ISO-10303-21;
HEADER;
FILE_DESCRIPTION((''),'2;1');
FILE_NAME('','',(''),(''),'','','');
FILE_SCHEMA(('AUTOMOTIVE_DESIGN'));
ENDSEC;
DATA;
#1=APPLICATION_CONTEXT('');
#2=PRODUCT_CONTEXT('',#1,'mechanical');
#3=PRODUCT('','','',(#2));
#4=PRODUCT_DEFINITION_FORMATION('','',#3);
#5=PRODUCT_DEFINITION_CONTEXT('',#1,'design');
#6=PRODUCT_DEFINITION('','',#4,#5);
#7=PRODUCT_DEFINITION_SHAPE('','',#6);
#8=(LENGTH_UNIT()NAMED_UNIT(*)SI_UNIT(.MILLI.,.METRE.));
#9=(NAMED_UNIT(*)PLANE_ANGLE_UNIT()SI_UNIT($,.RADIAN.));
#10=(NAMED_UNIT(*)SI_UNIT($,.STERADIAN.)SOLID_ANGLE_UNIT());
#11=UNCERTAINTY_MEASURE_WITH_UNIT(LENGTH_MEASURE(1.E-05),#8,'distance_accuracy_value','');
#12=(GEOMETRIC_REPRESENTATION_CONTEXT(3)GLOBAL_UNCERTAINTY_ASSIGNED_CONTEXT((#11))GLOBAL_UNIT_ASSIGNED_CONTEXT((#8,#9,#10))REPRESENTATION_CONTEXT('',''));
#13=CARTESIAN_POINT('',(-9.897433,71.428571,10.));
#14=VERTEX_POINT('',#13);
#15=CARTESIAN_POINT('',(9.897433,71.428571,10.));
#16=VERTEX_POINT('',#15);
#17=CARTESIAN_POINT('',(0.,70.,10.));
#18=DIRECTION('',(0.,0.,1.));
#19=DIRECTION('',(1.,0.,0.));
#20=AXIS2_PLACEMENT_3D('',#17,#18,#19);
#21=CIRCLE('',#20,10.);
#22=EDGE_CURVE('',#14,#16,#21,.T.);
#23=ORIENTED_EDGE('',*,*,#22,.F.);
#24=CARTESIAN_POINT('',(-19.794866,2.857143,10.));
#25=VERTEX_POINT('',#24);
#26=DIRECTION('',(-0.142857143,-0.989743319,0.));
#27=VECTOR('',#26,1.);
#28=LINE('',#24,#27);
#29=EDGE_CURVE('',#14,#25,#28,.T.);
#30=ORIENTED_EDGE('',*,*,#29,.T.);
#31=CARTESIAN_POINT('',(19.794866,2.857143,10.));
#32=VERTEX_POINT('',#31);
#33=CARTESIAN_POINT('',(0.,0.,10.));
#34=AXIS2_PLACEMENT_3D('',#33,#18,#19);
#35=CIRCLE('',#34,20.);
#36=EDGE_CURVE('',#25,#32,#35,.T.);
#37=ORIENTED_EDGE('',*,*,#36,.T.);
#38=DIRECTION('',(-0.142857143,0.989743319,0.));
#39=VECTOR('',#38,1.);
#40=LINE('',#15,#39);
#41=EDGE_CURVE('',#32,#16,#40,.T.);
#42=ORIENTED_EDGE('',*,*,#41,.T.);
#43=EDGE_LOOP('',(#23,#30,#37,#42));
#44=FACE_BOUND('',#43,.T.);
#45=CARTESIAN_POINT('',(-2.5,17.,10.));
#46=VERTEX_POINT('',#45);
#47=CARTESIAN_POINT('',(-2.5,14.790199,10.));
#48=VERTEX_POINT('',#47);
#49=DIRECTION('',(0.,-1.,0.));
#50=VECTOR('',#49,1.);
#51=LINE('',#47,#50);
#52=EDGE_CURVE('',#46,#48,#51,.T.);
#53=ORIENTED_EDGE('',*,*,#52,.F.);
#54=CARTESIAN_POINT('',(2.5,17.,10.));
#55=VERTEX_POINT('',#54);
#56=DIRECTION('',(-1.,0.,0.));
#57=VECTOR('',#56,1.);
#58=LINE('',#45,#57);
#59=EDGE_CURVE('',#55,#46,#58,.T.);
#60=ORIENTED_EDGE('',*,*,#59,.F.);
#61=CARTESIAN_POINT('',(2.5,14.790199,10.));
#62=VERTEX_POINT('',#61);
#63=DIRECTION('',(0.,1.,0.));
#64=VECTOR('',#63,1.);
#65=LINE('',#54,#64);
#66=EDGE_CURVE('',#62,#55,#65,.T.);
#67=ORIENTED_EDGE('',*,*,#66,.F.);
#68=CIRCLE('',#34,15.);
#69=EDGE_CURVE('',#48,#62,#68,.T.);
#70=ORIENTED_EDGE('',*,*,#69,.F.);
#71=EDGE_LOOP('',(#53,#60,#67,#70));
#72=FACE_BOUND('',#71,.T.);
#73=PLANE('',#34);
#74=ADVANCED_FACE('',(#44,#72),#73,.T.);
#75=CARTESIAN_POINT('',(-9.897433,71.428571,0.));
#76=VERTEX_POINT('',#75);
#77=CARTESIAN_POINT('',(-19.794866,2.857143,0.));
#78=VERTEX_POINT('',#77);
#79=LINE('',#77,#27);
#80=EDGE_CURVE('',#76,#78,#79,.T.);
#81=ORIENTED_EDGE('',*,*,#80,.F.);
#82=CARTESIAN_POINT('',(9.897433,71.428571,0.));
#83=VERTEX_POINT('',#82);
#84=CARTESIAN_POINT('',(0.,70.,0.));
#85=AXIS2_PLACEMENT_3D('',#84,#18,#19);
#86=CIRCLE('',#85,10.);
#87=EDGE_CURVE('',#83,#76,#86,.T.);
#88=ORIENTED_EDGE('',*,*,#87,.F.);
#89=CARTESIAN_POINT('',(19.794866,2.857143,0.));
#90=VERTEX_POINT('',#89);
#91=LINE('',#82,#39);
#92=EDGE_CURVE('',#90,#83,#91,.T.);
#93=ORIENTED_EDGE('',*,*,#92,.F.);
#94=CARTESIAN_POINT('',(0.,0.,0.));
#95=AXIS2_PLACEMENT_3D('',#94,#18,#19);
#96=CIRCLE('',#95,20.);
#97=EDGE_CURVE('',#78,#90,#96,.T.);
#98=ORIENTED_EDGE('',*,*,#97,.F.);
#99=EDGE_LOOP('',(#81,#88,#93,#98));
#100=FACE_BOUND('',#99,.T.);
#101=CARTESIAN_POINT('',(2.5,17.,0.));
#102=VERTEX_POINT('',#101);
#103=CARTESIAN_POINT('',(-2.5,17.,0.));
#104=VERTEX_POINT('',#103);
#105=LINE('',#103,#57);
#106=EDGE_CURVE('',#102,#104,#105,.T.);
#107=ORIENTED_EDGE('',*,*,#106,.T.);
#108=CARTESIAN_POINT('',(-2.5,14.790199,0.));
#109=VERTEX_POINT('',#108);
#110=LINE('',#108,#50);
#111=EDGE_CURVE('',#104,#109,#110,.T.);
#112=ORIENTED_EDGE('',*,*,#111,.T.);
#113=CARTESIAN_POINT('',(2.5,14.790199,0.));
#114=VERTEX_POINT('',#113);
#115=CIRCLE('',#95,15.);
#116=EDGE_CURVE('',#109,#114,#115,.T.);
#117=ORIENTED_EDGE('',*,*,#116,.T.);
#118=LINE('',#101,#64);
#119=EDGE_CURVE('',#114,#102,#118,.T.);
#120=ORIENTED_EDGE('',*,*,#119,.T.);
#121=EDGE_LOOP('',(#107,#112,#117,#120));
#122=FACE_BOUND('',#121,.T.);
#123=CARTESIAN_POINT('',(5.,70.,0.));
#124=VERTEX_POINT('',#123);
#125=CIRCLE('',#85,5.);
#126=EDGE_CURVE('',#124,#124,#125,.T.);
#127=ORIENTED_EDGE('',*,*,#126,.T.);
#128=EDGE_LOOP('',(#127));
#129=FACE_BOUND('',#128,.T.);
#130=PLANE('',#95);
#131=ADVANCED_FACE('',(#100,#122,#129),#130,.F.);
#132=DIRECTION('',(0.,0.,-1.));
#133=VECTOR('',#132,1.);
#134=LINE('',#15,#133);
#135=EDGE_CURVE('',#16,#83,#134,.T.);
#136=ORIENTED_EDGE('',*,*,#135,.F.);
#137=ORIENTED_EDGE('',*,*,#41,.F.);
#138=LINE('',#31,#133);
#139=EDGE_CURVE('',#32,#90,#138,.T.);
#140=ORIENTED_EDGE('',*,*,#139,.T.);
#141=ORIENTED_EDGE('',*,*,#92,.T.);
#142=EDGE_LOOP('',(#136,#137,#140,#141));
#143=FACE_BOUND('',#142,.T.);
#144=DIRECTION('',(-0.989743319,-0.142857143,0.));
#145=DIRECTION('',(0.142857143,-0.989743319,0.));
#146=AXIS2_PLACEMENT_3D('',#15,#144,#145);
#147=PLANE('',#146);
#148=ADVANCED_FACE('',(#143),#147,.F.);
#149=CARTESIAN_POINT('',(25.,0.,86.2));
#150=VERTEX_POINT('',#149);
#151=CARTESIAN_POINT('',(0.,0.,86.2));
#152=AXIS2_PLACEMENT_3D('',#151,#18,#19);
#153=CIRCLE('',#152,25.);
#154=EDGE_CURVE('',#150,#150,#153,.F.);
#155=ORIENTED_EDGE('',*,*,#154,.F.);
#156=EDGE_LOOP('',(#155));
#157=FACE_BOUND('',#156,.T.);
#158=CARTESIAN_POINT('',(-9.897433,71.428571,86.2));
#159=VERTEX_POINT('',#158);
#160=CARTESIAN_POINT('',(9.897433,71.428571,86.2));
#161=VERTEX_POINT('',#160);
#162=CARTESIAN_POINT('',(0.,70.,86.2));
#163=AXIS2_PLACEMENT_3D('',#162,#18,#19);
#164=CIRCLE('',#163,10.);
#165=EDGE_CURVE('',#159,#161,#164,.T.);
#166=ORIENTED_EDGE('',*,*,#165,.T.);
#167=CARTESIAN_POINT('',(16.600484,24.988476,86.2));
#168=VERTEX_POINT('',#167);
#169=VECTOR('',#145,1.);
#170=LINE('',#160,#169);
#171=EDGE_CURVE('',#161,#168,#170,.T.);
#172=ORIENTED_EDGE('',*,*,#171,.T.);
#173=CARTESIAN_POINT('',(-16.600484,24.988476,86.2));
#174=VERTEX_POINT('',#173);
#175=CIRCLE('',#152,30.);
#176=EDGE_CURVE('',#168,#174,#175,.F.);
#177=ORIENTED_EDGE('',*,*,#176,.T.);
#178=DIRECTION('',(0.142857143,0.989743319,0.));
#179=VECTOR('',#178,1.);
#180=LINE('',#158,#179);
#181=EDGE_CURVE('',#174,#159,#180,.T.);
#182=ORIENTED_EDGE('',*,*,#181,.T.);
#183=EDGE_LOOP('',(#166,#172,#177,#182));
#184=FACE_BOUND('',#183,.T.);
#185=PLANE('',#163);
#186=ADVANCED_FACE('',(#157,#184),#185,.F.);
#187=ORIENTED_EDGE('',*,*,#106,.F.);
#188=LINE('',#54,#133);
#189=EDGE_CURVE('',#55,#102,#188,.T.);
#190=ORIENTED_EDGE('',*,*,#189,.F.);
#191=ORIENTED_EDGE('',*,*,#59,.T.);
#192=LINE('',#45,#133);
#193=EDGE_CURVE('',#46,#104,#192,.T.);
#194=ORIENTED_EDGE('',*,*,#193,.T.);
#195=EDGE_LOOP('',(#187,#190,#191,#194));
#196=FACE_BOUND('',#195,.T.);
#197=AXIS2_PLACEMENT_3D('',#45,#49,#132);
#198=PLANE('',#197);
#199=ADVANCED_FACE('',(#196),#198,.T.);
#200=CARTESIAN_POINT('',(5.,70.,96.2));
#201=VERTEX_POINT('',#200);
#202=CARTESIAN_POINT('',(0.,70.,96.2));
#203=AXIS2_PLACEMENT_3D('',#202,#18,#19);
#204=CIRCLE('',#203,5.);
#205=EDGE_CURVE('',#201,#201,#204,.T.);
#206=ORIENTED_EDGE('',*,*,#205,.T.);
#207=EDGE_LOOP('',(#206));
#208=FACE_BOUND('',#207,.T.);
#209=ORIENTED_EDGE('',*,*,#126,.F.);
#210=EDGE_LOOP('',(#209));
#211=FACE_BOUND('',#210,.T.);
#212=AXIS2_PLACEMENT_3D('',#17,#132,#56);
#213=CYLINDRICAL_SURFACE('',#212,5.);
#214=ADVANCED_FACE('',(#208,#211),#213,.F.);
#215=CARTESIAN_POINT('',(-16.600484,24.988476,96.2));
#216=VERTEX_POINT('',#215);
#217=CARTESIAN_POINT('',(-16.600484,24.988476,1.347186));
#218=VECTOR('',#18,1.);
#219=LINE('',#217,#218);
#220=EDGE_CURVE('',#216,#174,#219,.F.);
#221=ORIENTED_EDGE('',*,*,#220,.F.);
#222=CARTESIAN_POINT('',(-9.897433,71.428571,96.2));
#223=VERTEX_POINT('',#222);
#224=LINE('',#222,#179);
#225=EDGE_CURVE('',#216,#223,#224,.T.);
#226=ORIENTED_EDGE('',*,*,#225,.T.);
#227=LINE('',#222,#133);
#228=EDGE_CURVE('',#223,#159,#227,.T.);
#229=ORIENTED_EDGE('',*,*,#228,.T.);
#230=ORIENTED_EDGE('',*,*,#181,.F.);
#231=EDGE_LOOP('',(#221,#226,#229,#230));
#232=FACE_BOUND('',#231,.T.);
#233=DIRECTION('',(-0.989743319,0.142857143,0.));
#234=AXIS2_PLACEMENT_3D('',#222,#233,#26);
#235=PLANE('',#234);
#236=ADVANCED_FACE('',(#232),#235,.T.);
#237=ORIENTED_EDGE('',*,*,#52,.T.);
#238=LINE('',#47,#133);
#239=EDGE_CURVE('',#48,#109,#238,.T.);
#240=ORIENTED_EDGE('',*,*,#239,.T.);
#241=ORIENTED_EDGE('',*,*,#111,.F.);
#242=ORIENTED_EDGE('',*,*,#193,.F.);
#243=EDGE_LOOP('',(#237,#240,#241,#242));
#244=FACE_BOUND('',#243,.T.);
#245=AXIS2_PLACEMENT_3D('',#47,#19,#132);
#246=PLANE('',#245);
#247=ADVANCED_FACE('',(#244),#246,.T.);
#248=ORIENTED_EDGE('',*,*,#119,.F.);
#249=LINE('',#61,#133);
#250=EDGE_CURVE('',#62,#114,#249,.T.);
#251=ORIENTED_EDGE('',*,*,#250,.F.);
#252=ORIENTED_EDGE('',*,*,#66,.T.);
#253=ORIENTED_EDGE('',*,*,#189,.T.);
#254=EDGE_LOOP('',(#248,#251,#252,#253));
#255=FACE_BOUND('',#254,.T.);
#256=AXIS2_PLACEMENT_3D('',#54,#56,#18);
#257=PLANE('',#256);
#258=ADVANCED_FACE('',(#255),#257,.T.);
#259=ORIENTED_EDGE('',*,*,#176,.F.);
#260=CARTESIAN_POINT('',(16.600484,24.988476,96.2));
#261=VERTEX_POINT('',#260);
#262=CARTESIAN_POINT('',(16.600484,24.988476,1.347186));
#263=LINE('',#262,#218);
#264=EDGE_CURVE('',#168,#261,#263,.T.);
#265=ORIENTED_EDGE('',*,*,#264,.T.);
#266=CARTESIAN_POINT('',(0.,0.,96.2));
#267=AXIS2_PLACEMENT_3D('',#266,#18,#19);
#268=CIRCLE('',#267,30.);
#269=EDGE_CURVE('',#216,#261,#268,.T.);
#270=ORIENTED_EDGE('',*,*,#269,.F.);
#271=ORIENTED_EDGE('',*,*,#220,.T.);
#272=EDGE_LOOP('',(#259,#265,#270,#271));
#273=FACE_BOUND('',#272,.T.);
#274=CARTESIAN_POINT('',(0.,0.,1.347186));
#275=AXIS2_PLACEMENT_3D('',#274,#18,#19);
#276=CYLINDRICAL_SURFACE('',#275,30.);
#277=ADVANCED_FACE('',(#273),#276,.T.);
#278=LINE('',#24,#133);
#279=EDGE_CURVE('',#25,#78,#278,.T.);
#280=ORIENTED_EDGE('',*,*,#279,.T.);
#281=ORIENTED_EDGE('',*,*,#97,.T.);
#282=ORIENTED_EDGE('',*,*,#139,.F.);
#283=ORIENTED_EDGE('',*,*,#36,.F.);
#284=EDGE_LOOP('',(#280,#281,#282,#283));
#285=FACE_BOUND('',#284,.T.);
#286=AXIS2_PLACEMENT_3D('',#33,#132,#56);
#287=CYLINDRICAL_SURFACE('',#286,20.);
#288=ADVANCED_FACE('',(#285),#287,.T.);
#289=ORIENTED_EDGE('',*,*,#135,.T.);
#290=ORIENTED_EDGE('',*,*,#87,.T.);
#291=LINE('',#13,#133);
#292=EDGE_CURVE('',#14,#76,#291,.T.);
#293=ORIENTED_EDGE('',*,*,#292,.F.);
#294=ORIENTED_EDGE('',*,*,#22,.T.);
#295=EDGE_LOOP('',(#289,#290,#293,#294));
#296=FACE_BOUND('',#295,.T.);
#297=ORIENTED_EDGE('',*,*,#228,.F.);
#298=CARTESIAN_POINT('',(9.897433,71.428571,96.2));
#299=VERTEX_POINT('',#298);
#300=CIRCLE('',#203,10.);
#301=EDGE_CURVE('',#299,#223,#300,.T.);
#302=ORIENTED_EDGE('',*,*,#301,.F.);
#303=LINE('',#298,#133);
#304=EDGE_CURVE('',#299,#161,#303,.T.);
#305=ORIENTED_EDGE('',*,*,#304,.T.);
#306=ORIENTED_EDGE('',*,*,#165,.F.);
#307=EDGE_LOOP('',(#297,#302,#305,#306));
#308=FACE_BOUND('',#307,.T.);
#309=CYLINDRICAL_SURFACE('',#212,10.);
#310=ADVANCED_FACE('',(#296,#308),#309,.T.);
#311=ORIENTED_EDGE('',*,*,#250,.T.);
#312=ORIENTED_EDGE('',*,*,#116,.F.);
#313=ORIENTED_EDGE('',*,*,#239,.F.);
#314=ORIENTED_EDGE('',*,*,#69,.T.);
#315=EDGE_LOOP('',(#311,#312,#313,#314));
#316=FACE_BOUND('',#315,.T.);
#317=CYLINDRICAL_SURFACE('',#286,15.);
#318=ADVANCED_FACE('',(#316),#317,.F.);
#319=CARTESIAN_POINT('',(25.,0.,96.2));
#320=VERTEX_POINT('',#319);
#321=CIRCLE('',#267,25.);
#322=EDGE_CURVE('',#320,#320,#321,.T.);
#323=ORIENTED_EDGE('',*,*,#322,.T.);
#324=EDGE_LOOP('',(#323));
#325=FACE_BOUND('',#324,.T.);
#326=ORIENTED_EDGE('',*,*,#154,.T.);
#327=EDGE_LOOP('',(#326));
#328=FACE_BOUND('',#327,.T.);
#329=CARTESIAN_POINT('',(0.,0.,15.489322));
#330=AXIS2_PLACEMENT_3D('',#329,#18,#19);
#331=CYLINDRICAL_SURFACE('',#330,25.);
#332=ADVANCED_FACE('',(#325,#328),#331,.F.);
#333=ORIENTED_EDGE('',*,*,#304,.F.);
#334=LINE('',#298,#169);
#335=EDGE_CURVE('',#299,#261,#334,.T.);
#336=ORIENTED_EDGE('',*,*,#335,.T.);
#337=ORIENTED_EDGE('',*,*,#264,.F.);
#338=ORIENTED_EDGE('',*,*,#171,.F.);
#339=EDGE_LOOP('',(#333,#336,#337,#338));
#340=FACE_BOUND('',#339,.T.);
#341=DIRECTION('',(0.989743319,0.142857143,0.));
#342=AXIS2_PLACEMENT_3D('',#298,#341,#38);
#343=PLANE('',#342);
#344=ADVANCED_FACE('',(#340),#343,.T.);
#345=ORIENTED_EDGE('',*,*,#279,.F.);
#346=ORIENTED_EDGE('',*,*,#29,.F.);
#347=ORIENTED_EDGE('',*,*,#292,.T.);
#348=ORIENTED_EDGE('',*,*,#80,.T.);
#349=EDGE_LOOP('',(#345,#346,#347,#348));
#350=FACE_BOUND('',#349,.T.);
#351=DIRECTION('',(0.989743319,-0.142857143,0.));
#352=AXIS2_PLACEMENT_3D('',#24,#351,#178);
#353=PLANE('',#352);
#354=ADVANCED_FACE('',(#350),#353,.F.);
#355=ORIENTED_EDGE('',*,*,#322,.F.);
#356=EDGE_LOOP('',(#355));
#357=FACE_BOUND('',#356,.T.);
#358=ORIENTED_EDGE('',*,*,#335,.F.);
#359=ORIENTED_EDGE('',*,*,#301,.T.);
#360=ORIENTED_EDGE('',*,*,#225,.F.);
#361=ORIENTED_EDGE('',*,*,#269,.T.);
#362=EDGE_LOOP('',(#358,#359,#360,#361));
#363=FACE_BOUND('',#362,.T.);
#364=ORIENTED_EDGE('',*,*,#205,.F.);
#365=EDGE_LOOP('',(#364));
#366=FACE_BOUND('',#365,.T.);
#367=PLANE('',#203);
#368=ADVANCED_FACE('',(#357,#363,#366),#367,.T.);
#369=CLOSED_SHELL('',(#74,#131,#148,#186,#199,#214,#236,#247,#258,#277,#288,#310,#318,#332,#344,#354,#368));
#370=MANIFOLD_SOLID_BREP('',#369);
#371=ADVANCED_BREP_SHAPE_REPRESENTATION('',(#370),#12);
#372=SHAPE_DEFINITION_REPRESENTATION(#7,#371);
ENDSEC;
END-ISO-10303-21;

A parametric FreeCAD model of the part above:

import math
import FreeCAD as App
import Part
import Sketcher

V = App.Vector

doc = App.newDocument("Part")
body = doc.addObject("PartDesign::Body", "Body")

# Sketch on XY plane
sketch1 = doc.addObject("Sketcher::SketchObject", "Sketch")
body.addObject(sketch1)
sketch1.AttachmentSupport = (doc.XY_Plane, [""])
sketch1.MapMode = "FlatFace"
sketch1.addGeometry([
    Part.LineSegment(V(-9.9, 71.4, 0), V(-19.8, 2.9, 0)),  # 0
    Part.ArcOfCircle(Part.Circle(V(0, 0, 0), V(0, 0, 1), 20), math.radians(172), math.radians(368)),  # 1
    Part.LineSegment(V(19.8, 2.9, 0), V(9.9, 71.4, 0)),  # 2
    Part.ArcOfCircle(Part.Circle(V(0, 70, 0), V(0, 0, 1), 10), math.radians(8), math.radians(172)),  # 3
    Part.LineSegment(V(-2.5, 14.8, 0), V(-2.5, 17, 0)),  # 4
    Part.LineSegment(V(-2.5, 17, 0), V(2.5, 17, 0)),  # 5
    Part.LineSegment(V(2.5, 17, 0), V(2.5, 14.8, 0)),  # 6
    Part.ArcOfCircle(Part.Circle(V(0, 0, 0), V(0, 0, 1), 15), math.radians(100), math.radians(440)),  # 7
    Part.Circle(V(0, 70, 0), V(0, 0, 1), 5),  # 8
], False)
sketch1.addConstraint([
    Sketcher.Constraint("Tangent", 0, 2, 1, 1),
    Sketcher.Constraint("Tangent", 1, 2, 2, 1),
    Sketcher.Constraint("Tangent", 2, 2, 3, 1),
    Sketcher.Constraint("Tangent", 3, 2, 0, 1),
    Sketcher.Constraint("Coincident", 4, 2, 5, 1),
    Sketcher.Constraint("Coincident", 5, 2, 6, 1),
    Sketcher.Constraint("Coincident", 6, 2, 7, 2),
    Sketcher.Constraint("Coincident", 7, 1, 4, 1),
    Sketcher.Constraint("Vertical", 4),
    Sketcher.Constraint("Horizontal", 5),
    Sketcher.Constraint("Vertical", 6),
    Sketcher.Constraint("Coincident", 1, 3, -1, 1),
    Sketcher.Constraint("Coincident", 7, 3, -1, 1),
    Sketcher.Constraint("Coincident", 8, 3, 3, 3),
    Sketcher.Constraint("PointOnObject", 3, 3, -2),
    Sketcher.Constraint("Horizontal", 6, 2, 7, 1),
    Sketcher.Constraint("Diameter", 8, 10.0),
    Sketcher.Constraint("Radius", 1, 20.0),
    Sketcher.Constraint("Radius", 3, 10.0),
    Sketcher.Constraint("Radius", 7, 15.0),
    Sketcher.Constraint("DistanceX", 5, 1, 5, 2, 5.0),
    Sketcher.Constraint("DistanceY", -1, 1, 3, 3, 70.0),
    Sketcher.Constraint("DistanceY", -1, 1, 4, 2, 17.0),
])
pad1 = doc.addObject("PartDesign::Pad", "Pad")
body.addObject(pad1)
pad1.Profile = sketch1
pad1.Length = 10

# Sketch on XY plane
sketch2 = doc.addObject("Sketcher::SketchObject", "Sketch001")
body.addObject(sketch2)
sketch2.AttachmentSupport = (doc.XY_Plane, [""])
sketch2.MapMode = "FlatFace"
sketch2.AttachmentOffset = App.Placement(V(0, 0, 10), App.Rotation())
sketch2.addGeometry([
    Part.Circle(V(0, 70, 0), V(0, 0, 1), 10),
    Part.Circle(V(0, 70, 0), V(0, 0, 1), 5),
], False)
sketch2.addConstraint([
    Sketcher.Constraint("Coincident", 1, 3, 0, 3),
    Sketcher.Constraint("PointOnObject", 0, 3, -2),
    Sketcher.Constraint("Diameter", 0, 20.0),
    Sketcher.Constraint("Diameter", 1, 10.0),
    Sketcher.Constraint("DistanceY", -1, 1, 0, 3, 70.0),
])
pad2 = doc.addObject("PartDesign::Pad", "Pad001")
body.addObject(pad2)
pad2.Profile = sketch2
pad2.Length = 76.2

# Sketch on XY plane
sketch3 = doc.addObject("Sketcher::SketchObject", "Sketch002")
body.addObject(sketch3)
sketch3.AttachmentSupport = (doc.XY_Plane, [""])
sketch3.MapMode = "FlatFace"
sketch3.AttachmentOffset = App.Placement(V(0, 0, 86.2), App.Rotation())
sketch3.addGeometry([
    Part.LineSegment(V(-9.9, 71.4, 0), V(-19.8, 2.9, 0)),  # 0
    Part.ArcOfCircle(Part.Circle(V(0, 0, 0), V(0, 0, 1), 20), math.radians(172), math.radians(368)),  # 1
    Part.LineSegment(V(19.8, 2.9, 0), V(9.9, 71.4, 0)),  # 2
    Part.ArcOfCircle(Part.Circle(V(0, 70, 0), V(0, 0, 1), 10), math.radians(8), math.radians(172)),  # 3
    Part.LineSegment(V(-2.5, 14.8, 0), V(-2.5, 17, 0)),  # 4
    Part.LineSegment(V(-2.5, 17, 0), V(2.5, 17, 0)),  # 5
    Part.LineSegment(V(2.5, 17, 0), V(2.5, 14.8, 0)),  # 6
    Part.ArcOfCircle(Part.Circle(V(0, 0, 0), V(0, 0, 1), 15), math.radians(100), math.radians(440)),  # 7
    Part.Circle(V(0, 70, 0), V(0, 0, 1), 5),  # 8
], False)
sketch3.addConstraint([
    Sketcher.Constraint("Tangent", 0, 2, 1, 1),
    Sketcher.Constraint("Tangent", 1, 2, 2, 1),
    Sketcher.Constraint("Tangent", 2, 2, 3, 1),
    Sketcher.Constraint("Tangent", 3, 2, 0, 1),
    Sketcher.Constraint("Coincident", 4, 2, 5, 1),
    Sketcher.Constraint("Coincident", 5, 2, 6, 1),
    Sketcher.Constraint("Coincident", 6, 2, 7, 2),
    Sketcher.Constraint("Coincident", 7, 1, 4, 1),
    Sketcher.Constraint("Vertical", 4),
    Sketcher.Constraint("Horizontal", 5),
    Sketcher.Constraint("Vertical", 6),
    Sketcher.Constraint("Coincident", 1, 3, -1, 1),
    Sketcher.Constraint("Coincident", 7, 3, -1, 1),
    Sketcher.Constraint("Coincident", 8, 3, 3, 3),
    Sketcher.Constraint("PointOnObject", 3, 3, -2),
    Sketcher.Constraint("Horizontal", 6, 2, 7, 1),
    Sketcher.Constraint("Diameter", 8, 10.0),
    Sketcher.Constraint("Radius", 1, 20.0),
    Sketcher.Constraint("Radius", 3, 10.0),
    Sketcher.Constraint("Radius", 7, 15.0),
    Sketcher.Constraint("DistanceX", 5, 1, 5, 2, 5.0),
    Sketcher.Constraint("DistanceY", -1, 1, 3, 3, 70.0),
    Sketcher.Constraint("DistanceY", -1, 1, 4, 2, 17.0),
])
pad3 = doc.addObject("PartDesign::Pad", "Pad002")
body.addObject(pad3)
pad3.Profile = sketch3
pad3.Length = 10

# Sketch on XY plane
sketch4 = doc.addObject("Sketcher::SketchObject", "Sketch003")
body.addObject(sketch4)
sketch4.AttachmentSupport = (doc.XY_Plane, [""])
sketch4.MapMode = "FlatFace"
sketch4.AttachmentOffset = App.Placement(V(0, 0, 96.2), App.Rotation())
sketch4.addGeometry(Part.Circle(V(0, 0, 0), V(0, 0, 1), 30), False)
sketch4.addConstraint([
    Sketcher.Constraint("Coincident", 0, 3, -1, 1),
    Sketcher.Constraint("Diameter", 0, 60.0),
])
pad4 = doc.addObject("PartDesign::Pad", "Pad003")
body.addObject(pad4)
pad4.Profile = sketch4
pad4.Length = 10
pad4.Reversed = True

# Sketch on XY plane
sketch5 = doc.addObject("Sketcher::SketchObject", "Sketch004")
body.addObject(sketch5)
sketch5.AttachmentSupport = (doc.XY_Plane, [""])
sketch5.MapMode = "FlatFace"
sketch5.AttachmentOffset = App.Placement(V(0, 0, 96.2), App.Rotation())
sketch5.addGeometry(Part.Circle(V(0, 0, 0), V(0, 0, 1), 25), False)
sketch5.addConstraint([
    Sketcher.Constraint("Coincident", 0, 3, -1, 1),
    Sketcher.Constraint("Diameter", 0, 50.0),
])
pocket1 = doc.addObject("PartDesign::Pocket", "Pocket")
body.addObject(pocket1)
pocket1.Profile = sketch5
pocket1.Length = 10

doc.recompute()
